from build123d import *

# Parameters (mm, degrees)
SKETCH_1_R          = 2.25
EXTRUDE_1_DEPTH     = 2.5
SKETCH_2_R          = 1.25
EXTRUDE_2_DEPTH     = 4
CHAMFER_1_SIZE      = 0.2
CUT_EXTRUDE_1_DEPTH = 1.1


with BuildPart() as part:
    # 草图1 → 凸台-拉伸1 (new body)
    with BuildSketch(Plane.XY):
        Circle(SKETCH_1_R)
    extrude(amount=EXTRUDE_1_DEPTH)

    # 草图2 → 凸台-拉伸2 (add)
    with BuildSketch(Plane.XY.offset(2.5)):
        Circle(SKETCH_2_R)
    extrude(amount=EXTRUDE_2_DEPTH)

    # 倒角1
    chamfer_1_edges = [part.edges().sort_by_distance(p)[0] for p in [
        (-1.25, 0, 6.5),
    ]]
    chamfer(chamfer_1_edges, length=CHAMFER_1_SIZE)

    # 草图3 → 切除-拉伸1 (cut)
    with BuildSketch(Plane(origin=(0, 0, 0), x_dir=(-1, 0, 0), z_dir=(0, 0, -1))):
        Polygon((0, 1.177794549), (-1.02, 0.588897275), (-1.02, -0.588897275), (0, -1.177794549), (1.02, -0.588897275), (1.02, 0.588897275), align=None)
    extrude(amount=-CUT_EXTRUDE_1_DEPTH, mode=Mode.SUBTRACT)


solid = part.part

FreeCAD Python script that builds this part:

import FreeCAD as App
import Part
import Sketcher

V = App.Vector
Q = App.Units.Quantity


def edges_at(feature, points):
    """Names of the edges that pass closest to the given points."""
    edges = feature.Shape.Edges
    near = lambda p: min(range(len(edges)), key=lambda i: edges[i].distToShape(Part.Vertex(*p))[0])
    return sorted({f"Edge{near(p) + 1}" for p in points})


def add_polygon(sketch, points):
    """Adds a closed chain of lines whose ends are joined by coincident constraints."""
    first, n = sketch.GeometryCount, len(points)
    for a, b in zip(points, points[1:] + points[:1]):
        sketch.addGeometry(Part.LineSegment(App.Vector(*a, 0), App.Vector(*b, 0)), False)
    for i in range(n):
        sketch.addConstraint(Sketcher.Constraint("Coincident", first + i, 2, first + (i + 1) % n, 1))

doc = App.newDocument("Part")
params = doc.addObject("Spreadsheet::Sheet", "Params")
for row, (alias, value) in enumerate([
    ("sketch1_diameter", "4.5 mm"),
    ("pad1_length", "2.5 mm"),
    ("sketch2_diameter", "2.5 mm"),
    ("pad2_length", "4 mm"),
    ("chamfer_size", "0.2 mm"),
    ("pocket1_length", "1.1 mm"),
], start=1):
    params.set(f"A{row}", alias)
    params.set(f"B{row}", "=" + value)
    params.setAlias(f"B{row}", alias)

body = doc.addObject("PartDesign::Body", "Body")

# Sketch on XY plane
sketch1 = body.newObject("Sketcher::SketchObject", "Sketch")
sketch1.AttachmentSupport = (doc.getObject("XY_Plane"), [""])
sketch1.MapMode = "FlatFace"
sketch1.addGeometry(Part.Circle(V(0, 0, 0), V(0, 0, 1), 2.2), False)
sketch1.addConstraint([
    Sketcher.Constraint("Coincident", 0, 3, -1, 1),
    Sketcher.Constraint("Diameter", 0, 4.5),
])
sketch1.setExpression("Constraints[1]", "Params.sketch1_diameter")
pad1 = body.newObject("PartDesign::Pad", "Pad")
pad1.Profile = sketch1
pad1.setExpression("Length", "Params.pad1_length")

# Sketch on XY plane
sketch2 = body.newObject("Sketcher::SketchObject", "Sketch001")
sketch2.AttachmentSupport = (doc.getObject("XY_Plane"), [""])
sketch2.MapMode = "FlatFace"
sketch2.AttachmentOffset = App.Placement(V(0, 0, 2.5), App.Rotation())
sketch2.addGeometry(Part.Circle(V(0, 0, 0), V(0, 0, 1), 1.2), False)
sketch2.addConstraint([
    Sketcher.Constraint("Coincident", 0, 3, -1, 1),
    Sketcher.Constraint("Diameter", 0, 2.5),
])
sketch2.setExpression("Constraints[1]", "Params.sketch2_diameter")
pad2 = body.newObject("PartDesign::Pad", "Pad001")
pad2.Profile = sketch2
pad2.setExpression("Length", "Params.pad2_length")
doc.recompute()

chamfer = body.newObject("PartDesign::Chamfer", "Chamfer")
chamfer.Base = (pad2, edges_at(pad2, [(-1.25, 0, 6.5)]))
chamfer.setExpression("Size", "Params.chamfer_size")

# Sketch on XY plane
sketch3 = body.newObject("Sketcher::SketchObject", "Sketch002")
sketch3.AttachmentSupport = (doc.getObject("XY_Plane"), [""])
sketch3.MapMode = "FlatFace"
add_polygon(sketch3, [(0, 1.2), (1, 0.6), (1, -0.6), (0, -1.2), (-1, -0.6), (-1, 0.6)])  # lines 0-5
sketch3.addConstraint([
    Sketcher.Constraint("Vertical", 1),
    Sketcher.Constraint("Vertical", 4),
    Sketcher.Constraint("Symmetric", 0, 2, 3, 2, -1, 1),
    Sketcher.Constraint("Symmetric", 2, 2, 5, 2, -1, 1),
    Sketcher.Constraint("PointOnObject", 2, 2, -2),
    Sketcher.Constraint("Parallel", 2, 5),
    Sketcher.Constraint("Horizontal", 1, 2, 3, 2),
    Sketcher.Constraint("Angle", 0, Q("-30 deg")),
    Sketcher.Constraint("DistanceX", -1, 1, 0, 2, 1.02),
    Sketcher.Constraint("DistanceY", 1, 2, 1, 1, 1.177795),
])
pocket1 = body.newObject("PartDesign::Pocket", "Pocket")
pocket1.Profile = sketch3
pocket1.setExpression("Length", "Params.pocket1_length")
pocket1.Reversed = True

doc.recompute()
